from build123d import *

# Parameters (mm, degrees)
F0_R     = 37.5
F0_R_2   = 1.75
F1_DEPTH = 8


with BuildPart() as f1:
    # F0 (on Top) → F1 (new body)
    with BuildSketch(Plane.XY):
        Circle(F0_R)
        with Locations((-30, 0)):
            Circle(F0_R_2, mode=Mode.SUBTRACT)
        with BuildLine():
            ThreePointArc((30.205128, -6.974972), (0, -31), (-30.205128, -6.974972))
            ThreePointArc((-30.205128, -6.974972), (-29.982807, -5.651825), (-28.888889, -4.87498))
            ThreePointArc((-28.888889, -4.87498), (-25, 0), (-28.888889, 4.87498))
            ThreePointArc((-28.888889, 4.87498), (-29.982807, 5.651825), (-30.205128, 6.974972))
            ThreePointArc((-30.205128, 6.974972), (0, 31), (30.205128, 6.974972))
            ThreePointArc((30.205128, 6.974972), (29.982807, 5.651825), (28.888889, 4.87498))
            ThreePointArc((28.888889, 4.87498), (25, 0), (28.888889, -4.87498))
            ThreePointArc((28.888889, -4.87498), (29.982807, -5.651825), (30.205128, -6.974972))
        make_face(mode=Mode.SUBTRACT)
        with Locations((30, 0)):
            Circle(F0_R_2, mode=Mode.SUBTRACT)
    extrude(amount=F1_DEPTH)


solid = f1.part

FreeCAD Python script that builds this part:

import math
import FreeCAD as App
import Part
import Sketcher

doc = App.newDocument("Part")
body = doc.addObject("PartDesign::Body", "Body")

sketch1 = body.newObject("Sketcher::SketchObject", "Sketch")
sketch1.AttachmentSupport = (doc.getObject("XY_Plane"), [""])
sketch1.MapMode = "FlatFace"
sketch1.addGeometry([
    Part.Circle(App.Vector(0, 0, 0), App.Vector(0, 0, 1), 37.5),
    Part.Circle(App.Vector(-30, 0, 0), App.Vector(0, 0, 1), 1.8),
    Part.ArcOfCircle(Part.Circle(App.Vector(28.5, -6.6, 0), App.Vector(0, 0, 1), 1.8), math.radians(-13), math.radians(77)),
    Part.ArcOfCircle(Part.Circle(App.Vector(0, 0, 0), App.Vector(0, 0, 1), 31), math.radians(-167), math.radians(-13)),
    Part.ArcOfCircle(Part.Circle(App.Vector(-28.5, -6.6, 0), App.Vector(0, 0, 1), 1.8), math.radians(103), math.radians(193)),
    Part.ArcOfCircle(Part.Circle(App.Vector(-30, 0, 0), App.Vector(0, 0, 1), 5), math.radians(-77), math.radians(77)),
    Part.ArcOfCircle(Part.Circle(App.Vector(-28.5, 6.6, 0), App.Vector(0, 0, 1), 1.8), math.radians(167), math.radians(257)),
    Part.ArcOfCircle(Part.Circle(App.Vector(0, 0, 0), App.Vector(0, 0, 1), 31), math.radians(13), math.radians(167)),
    Part.ArcOfCircle(Part.Circle(App.Vector(28.5, 6.6, 0), App.Vector(0, 0, 1), 1.8), math.radians(-77), math.radians(13)),
    Part.ArcOfCircle(Part.Circle(App.Vector(30, 0, 0), App.Vector(0, 0, 1), 5), math.radians(103), math.radians(257)),
    Part.Circle(App.Vector(30, 0, 0), App.Vector(0, 0, 1), 1.8),
], False)
sketch1.addConstraint([
    Sketcher.Constraint("Tangent", 2, 1, 3, 2),
    Sketcher.Constraint("Tangent", 3, 1, 4, 2),
    Sketcher.Constraint("Tangent", 4, 1, 5, 1),
    Sketcher.Constraint("Tangent", 5, 2, 6, 2),
    Sketcher.Constraint("Tangent", 6, 1, 7, 2),
    Sketcher.Constraint("Tangent", 7, 1, 8, 2),
    Sketcher.Constraint("Tangent", 8, 1, 9, 1),
    Sketcher.Constraint("Tangent", 9, 2, 2, 2),
    Sketcher.Constraint("Coincident", 0, 3, -1, 1),
    Sketcher.Constraint("Coincident", 3, 3, -1, 1),
    Sketcher.Constraint("Coincident", 7, 3, -1, 1),
    Sketcher.Constraint("Coincident", 5, 3, 1, 3),
    Sketcher.Constraint("Coincident", 10, 3, 9, 3),
    Sketcher.Constraint("Equal", 1, 2),
    Sketcher.Constraint("Equal", 2, 4),
    Sketcher.Constraint("Equal", 4, 6),
    Sketcher.Constraint("Equal", 3, 7),
    Sketcher.Constraint("Equal", 6, 8),
    Sketcher.Constraint("Equal", 5, 9),
    Sketcher.Constraint("Equal", 8, 10),
    Sketcher.Constraint("Symmetric", 1, 3, 9, 3, -1, 1),
    Sketcher.Constraint("PointOnObject", 1, 3, -1),
    Sketcher.Constraint("Diameter", 0, 75.0),
    Sketcher.Constraint("Radius", 3, 31.0),
    Sketcher.Constraint("Radius", 5, 5.0),
    Sketcher.Constraint("Diameter", 1, 3.5),
    Sketcher.Constraint("DistanceX", 1, 3, -1, 1, 30.0),
])
pad1 = body.newObject("PartDesign::Pad", "Pad")
pad1.Profile = sketch1
pad1.Length = 8

doc.recompute()
